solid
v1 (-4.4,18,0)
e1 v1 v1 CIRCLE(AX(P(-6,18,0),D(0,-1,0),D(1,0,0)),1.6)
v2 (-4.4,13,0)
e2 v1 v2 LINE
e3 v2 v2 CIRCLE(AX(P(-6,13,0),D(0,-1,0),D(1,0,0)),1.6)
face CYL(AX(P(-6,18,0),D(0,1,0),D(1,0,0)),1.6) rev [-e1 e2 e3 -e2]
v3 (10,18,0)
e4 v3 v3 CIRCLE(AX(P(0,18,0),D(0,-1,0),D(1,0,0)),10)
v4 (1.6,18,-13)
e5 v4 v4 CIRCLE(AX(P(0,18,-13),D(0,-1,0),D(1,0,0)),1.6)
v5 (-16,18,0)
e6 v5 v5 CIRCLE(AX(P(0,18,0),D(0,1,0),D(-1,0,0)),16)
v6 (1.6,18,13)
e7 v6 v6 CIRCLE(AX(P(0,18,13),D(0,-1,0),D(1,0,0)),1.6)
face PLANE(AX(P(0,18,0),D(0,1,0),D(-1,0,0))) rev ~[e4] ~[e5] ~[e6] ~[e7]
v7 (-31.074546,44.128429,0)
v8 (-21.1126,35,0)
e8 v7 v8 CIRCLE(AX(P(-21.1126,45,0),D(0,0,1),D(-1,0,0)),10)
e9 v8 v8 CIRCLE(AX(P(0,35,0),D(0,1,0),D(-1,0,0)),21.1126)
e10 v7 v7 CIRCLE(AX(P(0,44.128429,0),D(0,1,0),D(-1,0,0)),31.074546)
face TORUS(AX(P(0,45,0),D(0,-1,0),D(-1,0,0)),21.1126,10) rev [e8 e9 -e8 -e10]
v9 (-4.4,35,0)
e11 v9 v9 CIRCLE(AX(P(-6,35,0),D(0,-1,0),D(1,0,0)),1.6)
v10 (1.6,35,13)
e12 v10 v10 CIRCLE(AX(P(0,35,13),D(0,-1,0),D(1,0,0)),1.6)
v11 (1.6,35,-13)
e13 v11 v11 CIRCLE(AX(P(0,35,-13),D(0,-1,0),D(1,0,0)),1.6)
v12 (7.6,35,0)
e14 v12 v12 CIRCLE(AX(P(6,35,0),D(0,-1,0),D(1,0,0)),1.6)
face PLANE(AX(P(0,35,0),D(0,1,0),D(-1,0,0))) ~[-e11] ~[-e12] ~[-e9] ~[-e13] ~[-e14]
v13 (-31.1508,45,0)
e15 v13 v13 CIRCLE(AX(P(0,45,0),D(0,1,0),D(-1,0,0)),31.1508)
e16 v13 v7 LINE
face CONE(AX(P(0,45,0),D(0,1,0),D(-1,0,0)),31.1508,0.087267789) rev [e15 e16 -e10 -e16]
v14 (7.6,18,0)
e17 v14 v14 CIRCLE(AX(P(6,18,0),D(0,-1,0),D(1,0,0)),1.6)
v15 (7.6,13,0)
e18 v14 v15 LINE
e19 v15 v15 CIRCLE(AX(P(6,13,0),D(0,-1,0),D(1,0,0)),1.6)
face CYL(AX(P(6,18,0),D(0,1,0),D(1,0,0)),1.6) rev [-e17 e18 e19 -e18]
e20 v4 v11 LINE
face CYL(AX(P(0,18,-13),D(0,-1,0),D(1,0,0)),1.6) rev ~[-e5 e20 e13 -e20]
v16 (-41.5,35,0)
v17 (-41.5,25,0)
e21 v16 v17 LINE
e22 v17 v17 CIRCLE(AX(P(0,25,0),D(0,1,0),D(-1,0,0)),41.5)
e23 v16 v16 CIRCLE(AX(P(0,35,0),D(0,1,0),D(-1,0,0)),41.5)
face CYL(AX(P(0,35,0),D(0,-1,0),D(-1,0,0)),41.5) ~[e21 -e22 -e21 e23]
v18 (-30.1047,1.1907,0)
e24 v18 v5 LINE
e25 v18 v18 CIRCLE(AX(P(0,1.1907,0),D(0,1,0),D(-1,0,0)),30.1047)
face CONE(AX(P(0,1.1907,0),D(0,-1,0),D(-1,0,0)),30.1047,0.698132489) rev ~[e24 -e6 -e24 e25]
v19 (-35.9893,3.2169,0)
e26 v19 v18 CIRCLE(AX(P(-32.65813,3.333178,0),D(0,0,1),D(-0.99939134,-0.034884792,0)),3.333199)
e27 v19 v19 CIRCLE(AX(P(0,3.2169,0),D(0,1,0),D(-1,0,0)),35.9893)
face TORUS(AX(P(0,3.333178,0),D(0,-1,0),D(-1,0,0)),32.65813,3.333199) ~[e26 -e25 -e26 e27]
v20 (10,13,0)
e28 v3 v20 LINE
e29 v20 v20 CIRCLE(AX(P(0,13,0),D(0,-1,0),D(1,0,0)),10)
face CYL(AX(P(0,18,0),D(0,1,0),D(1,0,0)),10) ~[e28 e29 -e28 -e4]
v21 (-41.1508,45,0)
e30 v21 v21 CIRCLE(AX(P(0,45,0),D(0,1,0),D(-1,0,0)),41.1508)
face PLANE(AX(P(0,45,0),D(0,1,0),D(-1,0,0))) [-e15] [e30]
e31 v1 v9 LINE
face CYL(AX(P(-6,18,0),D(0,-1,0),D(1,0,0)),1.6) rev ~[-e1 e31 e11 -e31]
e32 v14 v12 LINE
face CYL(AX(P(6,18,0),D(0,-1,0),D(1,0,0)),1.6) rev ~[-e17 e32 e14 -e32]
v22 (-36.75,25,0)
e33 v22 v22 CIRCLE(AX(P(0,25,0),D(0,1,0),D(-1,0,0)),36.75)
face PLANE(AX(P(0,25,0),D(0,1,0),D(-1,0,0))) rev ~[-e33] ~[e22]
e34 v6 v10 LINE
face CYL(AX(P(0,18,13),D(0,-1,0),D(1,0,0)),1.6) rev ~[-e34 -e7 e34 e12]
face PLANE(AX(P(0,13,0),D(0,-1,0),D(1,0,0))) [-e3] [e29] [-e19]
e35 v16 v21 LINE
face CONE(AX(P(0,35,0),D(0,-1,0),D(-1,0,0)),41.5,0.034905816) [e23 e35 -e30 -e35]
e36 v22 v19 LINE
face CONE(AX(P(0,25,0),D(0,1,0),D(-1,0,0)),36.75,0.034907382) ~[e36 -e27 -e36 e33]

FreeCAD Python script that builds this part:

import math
import FreeCAD as App
import Part
import Sketcher

V = App.Vector
Q = App.Units.Quantity


def edges_at(feature, points):
    """Names of the edges that pass closest to the given points."""
    edges = feature.Shape.Edges
    near = lambda p: min(range(len(edges)), key=lambda i: edges[i].distToShape(Part.Vertex(*p))[0])
    return sorted({f"Edge{near(p) + 1}" for p in points})

doc = App.newDocument("Part")
params = doc.addObject("Spreadsheet::Sheet", "Params")
for row, (alias, value) in enumerate([
    ("sketch1_width", "10 mm"),
    ("sketch1_width2", "16 mm"),
    ("sketch1_width3", "4.75 mm"),
    ("revolution_angle", "360 deg"),
    ("fillet_radius", "10 mm"),
    ("sketch2_diameter", "3.2 mm"),
    ("sketch3_diameter", "20 mm"),
    ("sketch3_diameter2", "3.2 mm"),
    ("pad1_length", "5 mm"),
], start=1):
    params.set(f"A{row}", alias)
    params.set(f"B{row}", "=" + value)
    params.setAlias(f"B{row}", alias)

body = doc.addObject("PartDesign::Body", "Body")

sketch1 = body.newObject("Sketcher::SketchObject", "Sketch")
sketch1.AttachmentSupport = (doc.getObject("XY_Plane"), [""])
sketch1.MapMode = "FlatFace"
sketch1.addGeometry([
    Part.LineSegment(V(-36.8, 25, 0), V(-36, 3.2, 0)),
    Part.ArcOfCircle(Part.Circle(V(-32.7, 3.3, 0), V(0, 0, 1), 3.3), math.radians(-178), math.radians(-40)),
    Part.LineSegment(V(-30.1, 1.2, 0), V(-16, 18, 0)),
    Part.LineSegment(V(-16, 18, 0), V(0, 18, 0)),
    Part.LineSegment(V(0, 18, 0), V(0, 35, 0)),
    Part.LineSegment(V(0, 35, 0), V(-30.3, 35, 0)),
    Part.LineSegment(V(-30.3, 35, 0), V(-31.2, 45, 0)),
    Part.LineSegment(V(-31.2, 45, 0), V(-41.2, 45, 0)),
    Part.LineSegment(V(-41.2, 45, 0), V(-41.5, 35, 0)),
    Part.LineSegment(V(-41.5, 35, 0), V(-41.5, 25, 0)),
    Part.LineSegment(V(-41.5, 25, 0), V(-36.8, 25, 0)),
], False)
sketch1.addConstraint([
    Sketcher.Constraint("Tangent", 0, 2, 1, 1),
    Sketcher.Constraint("Tangent", 1, 2, 2, 1),
    Sketcher.Constraint("Coincident", 2, 2, 3, 1),
    Sketcher.Constraint("Coincident", 3, 2, 4, 1),
    Sketcher.Constraint("Coincident", 4, 2, 5, 1),
    Sketcher.Constraint("Coincident", 5, 2, 6, 1),
    Sketcher.Constraint("Coincident", 6, 2, 7, 1),
    Sketcher.Constraint("Coincident", 7, 2, 8, 1),
    Sketcher.Constraint("Coincident", 8, 2, 9, 1),
    Sketcher.Constraint("Coincident", 9, 2, 10, 1),
    Sketcher.Constraint("Coincident", 10, 2, 0, 1),
    Sketcher.Constraint("Horizontal", 3),
    Sketcher.Constraint("Vertical", 4),
    Sketcher.Constraint("Horizontal", 5),
    Sketcher.Constraint("Horizontal", 7),
    Sketcher.Constraint("Vertical", 9),
    Sketcher.Constraint("Horizontal", 10),
    Sketcher.Constraint("PointOnObject", 3, 2, -2),
    Sketcher.Constraint("Horizontal", 5, 2, 8, 2),
    Sketcher.Constraint("Equal", 7, 9),
    Sketcher.Constraint("DistanceX", 7, 2, 7, 1, Q("10 mm")),
    Sketcher.Constraint("Angle", 6, Q("95 deg")),
    Sketcher.Constraint("Angle", 8, Q("-92 deg")),
    Sketcher.Constraint("DistanceY", -1, 1, 2, 2, Q("18 mm")),
    Sketcher.Constraint("DistanceY", -1, 1, 4, 2, Q("35 mm")),
    Sketcher.Constraint("DistanceY", -1, 1, 6, 2, Q("45 mm")),
    Sketcher.Constraint("DistanceX", 3, 1, 3, 2, Q("16 mm")),
    Sketcher.Constraint("Angle", 0, Q("-88 deg")),
    Sketcher.Constraint("Angle", 2, Q("50 deg")),
    Sketcher.Constraint("DistanceX", 10, 1, 10, 2, Q("4.75 mm")),
    Sketcher.Constraint("DistanceX", 8, 2, -1, 1, Q("41.5 mm")),
    Sketcher.Constraint("Radius", 1, Q("3.3332 mm")),
])
sketch1.setExpression("Constraints[20]", "Params.sketch1_width")
sketch1.setExpression("Constraints[26]", "Params.sketch1_width2")
sketch1.setExpression("Constraints[29]", "Params.sketch1_width3")
revolution = body.newObject("PartDesign::Revolution", "Revolution")
revolution.Profile = sketch1
revolution.ReferenceAxis = (sketch1, ["V_Axis"])
revolution.setExpression("Angle", "Params.revolution_angle")
doc.recompute()

fillet = body.newObject("PartDesign::Fillet", "Fillet")
fillet.Base = (revolution, edges_at(revolution, [(30.276, 35, 0)]))
fillet.setExpression("Radius", "Params.fillet_radius")

sketch2 = body.newObject("Sketcher::SketchObject", "Sketch001")
sketch2.AttachmentSupport = (doc.getObject("XZ_Plane"), [""])
sketch2.MapMode = "FlatFace"
sketch2.AttachmentOffset = App.Placement(V(0, 0, -18), App.Rotation())
sketch2.addGeometry([
    Part.Circle(V(-6, 0, 0), V(0, 0, 1), 1.6),
    Part.Circle(V(6, 0, 0), V(0, 0, 1), 1.6),
    Part.Circle(V(0, 13, 0), V(0, 0, 1), 1.6),
    Part.Circle(V(0, -13, 0), V(0, 0, 1), 1.6),
], False)
sketch2.addConstraint([
    Sketcher.Constraint("Equal", 0, 1),
    Sketcher.Constraint("Equal", 1, 2),
    Sketcher.Constraint("Equal", 2, 3),
    Sketcher.Constraint("Symmetric", 0, 3, 1, 3, -1, 1),
    Sketcher.Constraint("Symmetric", 2, 3, 3, 3, -1, 1),
    Sketcher.Constraint("PointOnObject", 0, 3, -1),
    Sketcher.Constraint("PointOnObject", 2, 3, -2),
    Sketcher.Constraint("Diameter", 0, Q("3.2 mm")),
    Sketcher.Constraint("DistanceX", 0, 3, -1, 1, Q("6 mm")),
    Sketcher.Constraint("DistanceY", -1, 1, 2, 3, Q("13 mm")),
])
sketch2.setExpression("Constraints[7]", "Params.sketch2_diameter")
pocket1 = body.newObject("PartDesign::Pocket", "Pocket")
pocket1.Profile = sketch2
pocket1.Type = "ThroughAll"

sketch3 = body.newObject("Sketcher::SketchObject", "Sketch002")
sketch3.AttachmentSupport = (doc.getObject("XZ_Plane"), [""])
sketch3.MapMode = "FlatFace"
sketch3.AttachmentOffset = App.Placement(V(0, 0, -18), App.Rotation())
sketch3.addGeometry([
    Part.Circle(V(0, 0, 0), V(0, 0, 1), 10),
    Part.Circle(V(-6, 0, 0), V(0, 0, 1), 1.6),
    Part.Circle(V(6, 0, 0), V(0, 0, 1), 1.6),
], False)
sketch3.addConstraint([
    Sketcher.Constraint("Coincident", 0, 3, -1, 1),
    Sketcher.Constraint("Equal", 1, 2),
    Sketcher.Constraint("Symmetric", 1, 3, 2, 3, -1, 1),
    Sketcher.Constraint("PointOnObject", 1, 3, -1),
    Sketcher.Constraint("Diameter", 0, Q("20 mm")),
    Sketcher.Constraint("Diameter", 1, Q("3.2 mm")),
    Sketcher.Constraint("DistanceX", 1, 3, -1, 1, Q("6 mm")),
])
sketch3.setExpression("Constraints[4]", "Params.sketch3_diameter")
sketch3.setExpression("Constraints[5]", "Params.sketch3_diameter2")
pad1 = body.newObject("PartDesign::Pad", "Pad")
pad1.Profile = sketch3
pad1.setExpression("Length", "Params.pad1_length")

doc.recompute()
